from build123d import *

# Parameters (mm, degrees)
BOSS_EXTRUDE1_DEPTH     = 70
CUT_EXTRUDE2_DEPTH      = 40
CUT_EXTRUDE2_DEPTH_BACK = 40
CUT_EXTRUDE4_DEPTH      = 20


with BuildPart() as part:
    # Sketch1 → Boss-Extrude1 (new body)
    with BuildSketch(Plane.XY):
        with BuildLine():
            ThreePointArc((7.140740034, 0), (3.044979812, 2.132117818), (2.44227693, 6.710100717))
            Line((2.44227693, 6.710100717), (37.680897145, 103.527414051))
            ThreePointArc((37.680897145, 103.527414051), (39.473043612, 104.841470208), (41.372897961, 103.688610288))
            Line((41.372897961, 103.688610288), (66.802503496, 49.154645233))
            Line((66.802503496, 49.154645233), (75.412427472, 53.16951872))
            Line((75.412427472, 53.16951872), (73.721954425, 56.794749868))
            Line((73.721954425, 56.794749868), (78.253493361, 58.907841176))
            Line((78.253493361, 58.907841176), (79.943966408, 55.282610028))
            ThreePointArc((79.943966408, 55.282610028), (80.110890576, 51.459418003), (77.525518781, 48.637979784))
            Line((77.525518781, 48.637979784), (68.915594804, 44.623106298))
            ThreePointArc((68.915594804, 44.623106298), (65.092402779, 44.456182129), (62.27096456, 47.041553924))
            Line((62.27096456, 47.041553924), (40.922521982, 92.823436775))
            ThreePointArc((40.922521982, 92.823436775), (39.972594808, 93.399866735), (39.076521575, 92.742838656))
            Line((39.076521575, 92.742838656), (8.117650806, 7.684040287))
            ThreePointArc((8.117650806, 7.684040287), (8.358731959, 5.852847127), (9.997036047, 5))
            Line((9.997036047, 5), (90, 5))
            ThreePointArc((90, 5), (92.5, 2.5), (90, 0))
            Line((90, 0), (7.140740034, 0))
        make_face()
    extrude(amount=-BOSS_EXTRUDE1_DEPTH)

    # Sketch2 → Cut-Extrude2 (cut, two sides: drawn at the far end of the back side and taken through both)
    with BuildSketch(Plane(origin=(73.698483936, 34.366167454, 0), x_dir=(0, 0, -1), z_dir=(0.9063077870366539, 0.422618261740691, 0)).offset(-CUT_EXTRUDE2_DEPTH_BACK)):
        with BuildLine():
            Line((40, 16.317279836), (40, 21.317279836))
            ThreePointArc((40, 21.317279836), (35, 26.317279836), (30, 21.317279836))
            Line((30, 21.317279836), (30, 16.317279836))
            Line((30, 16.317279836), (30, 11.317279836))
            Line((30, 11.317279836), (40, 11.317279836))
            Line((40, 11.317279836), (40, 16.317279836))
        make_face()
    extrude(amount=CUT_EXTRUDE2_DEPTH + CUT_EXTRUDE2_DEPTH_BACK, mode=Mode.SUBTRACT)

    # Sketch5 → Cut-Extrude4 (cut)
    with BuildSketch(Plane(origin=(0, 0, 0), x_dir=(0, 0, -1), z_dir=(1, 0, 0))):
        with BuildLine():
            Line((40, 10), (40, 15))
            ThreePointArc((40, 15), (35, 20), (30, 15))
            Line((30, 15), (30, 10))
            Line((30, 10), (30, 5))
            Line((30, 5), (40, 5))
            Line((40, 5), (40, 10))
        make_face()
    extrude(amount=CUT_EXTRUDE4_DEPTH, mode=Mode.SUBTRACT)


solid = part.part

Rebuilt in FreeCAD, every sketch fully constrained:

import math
import FreeCAD as App
import Part
import Sketcher
from FreeCAD import Vector
Q = App.Units.Quantity

doc = App.newDocument("Part")
body = doc.addObject("PartDesign::Body", "Body")

# Sketch on XY plane
sketch1 = body.newObject("Sketcher::SketchObject", "Sketch")
sketch1.AttachmentSupport = (doc.getObject("XY_Plane"), [""])
sketch1.MapMode = "FlatFace"
sketch1.addGeometry(Part.ArcOfCircle(Part.Circle(Vector(7.14074, 5, 0), Vector(0, 0, 1), 5), math.radians(160), math.radians(270)), False)
sketch1.addGeometry(Part.LineSegment(Vector(7.14074, 0, 0), Vector(90, 0, 0)), False)
sketch1.addGeometry(Part.ArcOfCircle(Part.Circle(Vector(90, 2.5, 0), Vector(0, 0, 1), 2.5), math.radians(-90), math.radians(90)), False)
sketch1.addGeometry(Part.LineSegment(Vector(90, 5, 0), Vector(9.997036, 5, 0)), False)
sketch1.addGeometry(Part.ArcOfCircle(Part.Circle(Vector(9.997036, 7, 0), Vector(0, 0, 1), 2), math.radians(160), math.radians(270)), False)
sketch1.addGeometry(Part.LineSegment(Vector(8.117651, 7.68404, 0), Vector(39.076522, 92.742839, 0)), False)
sketch1.addGeometry(Part.ArcOfCircle(Part.Circle(Vector(40.016214, 92.400819, 0), Vector(0, 0, 1), 1), math.radians(25), math.radians(160)), False)
sketch1.addGeometry(Part.LineSegment(Vector(40.922522, 92.823437, 0), Vector(62.270965, 47.041554, 0)), False)
sketch1.addGeometry(Part.ArcOfCircle(Part.Circle(Vector(66.802503, 49.154645, 0), Vector(0, 0, 1), 5), math.radians(-155), math.radians(-65)), False)
sketch1.addGeometry(Part.LineSegment(Vector(68.915595, 44.623106, 0), Vector(77.525519, 48.63798, 0)), False)
sketch1.addGeometry(Part.ArcOfCircle(Part.Circle(Vector(75.412427, 53.169519, 0), Vector(0, 0, 1), 5), math.radians(-65), math.radians(25)), False)
sketch1.addGeometry(Part.LineSegment(Vector(79.943966, 55.28261, 0), Vector(78.253493, 58.907841, 0)), False)
sketch1.addGeometry(Part.LineSegment(Vector(78.253493, 58.907841, 0), Vector(73.721954, 56.79475, 0)), False)
sketch1.addGeometry(Part.LineSegment(Vector(73.721954, 56.79475, 0), Vector(75.412427, 53.169519, 0)), False)
sketch1.addGeometry(Part.LineSegment(Vector(75.412427, 53.169519, 0), Vector(66.802503, 49.154645, 0)), False)
sketch1.addGeometry(Part.LineSegment(Vector(66.802503, 49.154645, 0), Vector(41.372898, 103.68861, 0)), False)
sketch1.addGeometry(Part.ArcOfCircle(Part.Circle(Vector(39.560282, 102.843374, 0), Vector(0, 0, 1), 2), math.radians(25), math.radians(160)), False)
sketch1.addGeometry(Part.LineSegment(Vector(37.680897, 103.527414, 0), Vector(2.442277, 6.710101, 0)), False)
sketch1.addConstraint(Sketcher.Constraint("Tangent", 0, 2, 1, 1))
sketch1.addConstraint(Sketcher.Constraint("Tangent", 1, 2, 2, 1))
sketch1.addConstraint(Sketcher.Constraint("Tangent", 2, 2, 3, 1))
sketch1.addConstraint(Sketcher.Constraint("Tangent", 3, 2, 4, 2))
sketch1.addConstraint(Sketcher.Constraint("Tangent", 4, 1, 5, 1))
sketch1.addConstraint(Sketcher.Constraint("Tangent", 5, 2, 6, 2))
sketch1.addConstraint(Sketcher.Constraint("Tangent", 6, 1, 7, 1))
sketch1.addConstraint(Sketcher.Constraint("Tangent", 7, 2, 8, 1))
sketch1.addConstraint(Sketcher.Constraint("Tangent", 8, 2, 9, 1))
sketch1.addConstraint(Sketcher.Constraint("Tangent", 9, 2, 10, 1))
sketch1.addConstraint(Sketcher.Constraint("Tangent", 10, 2, 11, 1))
sketch1.addConstraint(Sketcher.Constraint("Coincident", 11, 2, 12, 1))
sketch1.addConstraint(Sketcher.Constraint("Coincident", 12, 2, 13, 1))
sketch1.addConstraint(Sketcher.Constraint("Coincident", 13, 2, 14, 1))
sketch1.addConstraint(Sketcher.Constraint("Coincident", 14, 2, 15, 1))
sketch1.addConstraint(Sketcher.Constraint("Tangent", 15, 2, 16, 1))
sketch1.addConstraint(Sketcher.Constraint("Tangent", 16, 2, 17, 1))
sketch1.addConstraint(Sketcher.Constraint("Tangent", 17, 2, 0, 1))
sketch1.addConstraint(Sketcher.Constraint("Horizontal", 1))
sketch1.addConstraint(Sketcher.Constraint("Horizontal", 3))
sketch1.addConstraint(Sketcher.Constraint("Coincident", 13, 2, 10, 3))
sketch1.addConstraint(Sketcher.Constraint("Coincident", 14, 2, 8, 3))
sketch1.addConstraint(Sketcher.Constraint("Equal", 0, 8))
sketch1.addConstraint(Sketcher.Constraint("Equal", 8, 10))
sketch1.addConstraint(Sketcher.Constraint("Equal", 4, 16))
sketch1.addConstraint(Sketcher.Constraint("PointOnObject", 0, 2, -1))
sketch1.addConstraint(Sketcher.Constraint("Perpendicular", 7, 9))
sketch1.addConstraint(Sketcher.Constraint("Perpendicular", 9, 11))
sketch1.addConstraint(Sketcher.Constraint("Perpendicular", 11, 12))
sketch1.addConstraint(Sketcher.Constraint("Perpendicular", 12, 13))
sketch1.addConstraint(Sketcher.Constraint("Perpendicular", 14, 15))
sketch1.addConstraint(Sketcher.Constraint("Parallel", 5, 17))
sketch1.addConstraint(Sketcher.Constraint("Horizontal", 0, 3, 2, 2))
sketch1.addConstraint(Sketcher.Constraint("Radius", 0, 5.0))
sketch1.addConstraint(Sketcher.Constraint("Radius", 4, 2.0))
sketch1.addConstraint(Sketcher.Constraint("Radius", 6, 1.0))
sketch1.addConstraint(Sketcher.Constraint("Angle", 5, Q("70 deg")))
sketch1.addConstraint(Sketcher.Constraint("Angle", 7, Q("-65 deg")))
sketch1.addConstraint(Sketcher.Constraint("Distance", 11, 4.0))
sketch1.addConstraint(Sketcher.Constraint("DistanceX", -1, 1, 2, 3, 90.0))
sketch1.addConstraint(Sketcher.Constraint("Distance", 9, 9.5))
sketch1.addConstraint(Sketcher.Constraint("DistanceX", 1, 1, 1, 2, 82.85926))
sketch1.addConstraint(Sketcher.Constraint("DistanceY", 10, 3, 6, 3, 39.2313))
sketch1.addConstraint(Sketcher.Constraint("DistanceY", 4, 1, 5, 2, 85.058798))
sketch1.addConstraint(Sketcher.Constraint("DistanceX", 3, 2, 3, 1, 80.002964))
pad1 = body.newObject("PartDesign::Pad", "Pad")
pad1.Profile = sketch1
pad1.Length = 70
pad1.Reversed = True

# Sketch on an angled plane
sketch2 = body.newObject("Sketcher::SketchObject", "Sketch001")
sketch2.Placement = App.Placement(Vector(73.698484, 34.366167, 0), App.Rotation(Vector(0, 0, -1), Vector(-0.422618262, 0.906307787, 0), Vector(0.906307787, 0.422618262, 0), "ZXY"))
sketch2.addGeometry(Part.ArcOfCircle(Part.Circle(Vector(35, 21.31728, 0), Vector(0, 0, 1), 5), math.radians(0), math.radians(180)), False)
sketch2.addGeometry(Part.LineSegment(Vector(30, 21.31728, 0), Vector(30, 11.31728, 0)), False)
sketch2.addGeometry(Part.LineSegment(Vector(30, 11.31728, 0), Vector(40, 11.31728, 0)), False)
sketch2.addGeometry(Part.LineSegment(Vector(40, 11.31728, 0), Vector(40, 21.31728, 0)), False)
sketch2.addConstraint(Sketcher.Constraint("Tangent", 0, 2, 1, 1))
sketch2.addConstraint(Sketcher.Constraint("Coincident", 1, 2, 2, 1))
sketch2.addConstraint(Sketcher.Constraint("Coincident", 2, 2, 3, 1))
sketch2.addConstraint(Sketcher.Constraint("Tangent", 3, 2, 0, 1))
sketch2.addConstraint(Sketcher.Constraint("Vertical", 1))
sketch2.addConstraint(Sketcher.Constraint("Horizontal", 2))
sketch2.addConstraint(Sketcher.Constraint("Vertical", 3))
sketch2.addConstraint(Sketcher.Constraint("Equal", 2, 1))
sketch2.addConstraint(Sketcher.Constraint("Radius", 0, 5.0))
sketch2.addConstraint(Sketcher.Constraint("DistanceX", -1, 1, 0, 3, 35.0))
sketch2.addConstraint(Sketcher.Constraint("DistanceY", -1, 1, 0, 3, 21.31728))
pocket1 = body.newObject("PartDesign::Pocket", "Pocket")
pocket1.Profile = sketch2
pocket1.Type = "TwoLengths"
pocket1.Length = 40
pocket1.Length2 = 40
pocket1.Reversed = True

# Sketch on YZ plane
sketch3 = body.newObject("Sketcher::SketchObject", "Sketch002")
sketch3.AttachmentSupport = (doc.getObject("YZ_Plane"), [""])
sketch3.MapMode = "FlatFace"
sketch3.addGeometry(Part.ArcOfCircle(Part.Circle(Vector(15, -35, 0), Vector(0, 0, 1), 5), math.radians(-90), math.radians(90)), False)
sketch3.addGeometry(Part.LineSegment(Vector(15, -30, 0), Vector(5, -30, 0)), False)
sketch3.addGeometry(Part.LineSegment(Vector(5, -30, 0), Vector(5, -40, 0)), False)
sketch3.addGeometry(Part.LineSegment(Vector(5, -40, 0), Vector(15, -40, 0)), False)
sketch3.addConstraint(Sketcher.Constraint("Tangent", 0, 2, 1, 1))
sketch3.addConstraint(Sketcher.Constraint("Coincident", 1, 2, 2, 1))
sketch3.addConstraint(Sketcher.Constraint("Coincident", 2, 2, 3, 1))
sketch3.addConstraint(Sketcher.Constraint("Tangent", 3, 2, 0, 1))
sketch3.addConstraint(Sketcher.Constraint("Horizontal", 1))
sketch3.addConstraint(Sketcher.Constraint("Vertical", 2))
sketch3.addConstraint(Sketcher.Constraint("Horizontal", 3))
sketch3.addConstraint(Sketcher.Constraint("Equal", 3, 2))
sketch3.addConstraint(Sketcher.Constraint("Radius", 0, 5.0))
sketch3.addConstraint(Sketcher.Constraint("DistanceX", -1, 1, 0, 3, 15.0))
sketch3.addConstraint(Sketcher.Constraint("DistanceY", 0, 3, -1, 1, 35.0))
pocket2 = body.newObject("PartDesign::Pocket", "Pocket001")
pocket2.Profile = sketch3
pocket2.Length = 20
pocket2.Reversed = True

doc.recompute()
